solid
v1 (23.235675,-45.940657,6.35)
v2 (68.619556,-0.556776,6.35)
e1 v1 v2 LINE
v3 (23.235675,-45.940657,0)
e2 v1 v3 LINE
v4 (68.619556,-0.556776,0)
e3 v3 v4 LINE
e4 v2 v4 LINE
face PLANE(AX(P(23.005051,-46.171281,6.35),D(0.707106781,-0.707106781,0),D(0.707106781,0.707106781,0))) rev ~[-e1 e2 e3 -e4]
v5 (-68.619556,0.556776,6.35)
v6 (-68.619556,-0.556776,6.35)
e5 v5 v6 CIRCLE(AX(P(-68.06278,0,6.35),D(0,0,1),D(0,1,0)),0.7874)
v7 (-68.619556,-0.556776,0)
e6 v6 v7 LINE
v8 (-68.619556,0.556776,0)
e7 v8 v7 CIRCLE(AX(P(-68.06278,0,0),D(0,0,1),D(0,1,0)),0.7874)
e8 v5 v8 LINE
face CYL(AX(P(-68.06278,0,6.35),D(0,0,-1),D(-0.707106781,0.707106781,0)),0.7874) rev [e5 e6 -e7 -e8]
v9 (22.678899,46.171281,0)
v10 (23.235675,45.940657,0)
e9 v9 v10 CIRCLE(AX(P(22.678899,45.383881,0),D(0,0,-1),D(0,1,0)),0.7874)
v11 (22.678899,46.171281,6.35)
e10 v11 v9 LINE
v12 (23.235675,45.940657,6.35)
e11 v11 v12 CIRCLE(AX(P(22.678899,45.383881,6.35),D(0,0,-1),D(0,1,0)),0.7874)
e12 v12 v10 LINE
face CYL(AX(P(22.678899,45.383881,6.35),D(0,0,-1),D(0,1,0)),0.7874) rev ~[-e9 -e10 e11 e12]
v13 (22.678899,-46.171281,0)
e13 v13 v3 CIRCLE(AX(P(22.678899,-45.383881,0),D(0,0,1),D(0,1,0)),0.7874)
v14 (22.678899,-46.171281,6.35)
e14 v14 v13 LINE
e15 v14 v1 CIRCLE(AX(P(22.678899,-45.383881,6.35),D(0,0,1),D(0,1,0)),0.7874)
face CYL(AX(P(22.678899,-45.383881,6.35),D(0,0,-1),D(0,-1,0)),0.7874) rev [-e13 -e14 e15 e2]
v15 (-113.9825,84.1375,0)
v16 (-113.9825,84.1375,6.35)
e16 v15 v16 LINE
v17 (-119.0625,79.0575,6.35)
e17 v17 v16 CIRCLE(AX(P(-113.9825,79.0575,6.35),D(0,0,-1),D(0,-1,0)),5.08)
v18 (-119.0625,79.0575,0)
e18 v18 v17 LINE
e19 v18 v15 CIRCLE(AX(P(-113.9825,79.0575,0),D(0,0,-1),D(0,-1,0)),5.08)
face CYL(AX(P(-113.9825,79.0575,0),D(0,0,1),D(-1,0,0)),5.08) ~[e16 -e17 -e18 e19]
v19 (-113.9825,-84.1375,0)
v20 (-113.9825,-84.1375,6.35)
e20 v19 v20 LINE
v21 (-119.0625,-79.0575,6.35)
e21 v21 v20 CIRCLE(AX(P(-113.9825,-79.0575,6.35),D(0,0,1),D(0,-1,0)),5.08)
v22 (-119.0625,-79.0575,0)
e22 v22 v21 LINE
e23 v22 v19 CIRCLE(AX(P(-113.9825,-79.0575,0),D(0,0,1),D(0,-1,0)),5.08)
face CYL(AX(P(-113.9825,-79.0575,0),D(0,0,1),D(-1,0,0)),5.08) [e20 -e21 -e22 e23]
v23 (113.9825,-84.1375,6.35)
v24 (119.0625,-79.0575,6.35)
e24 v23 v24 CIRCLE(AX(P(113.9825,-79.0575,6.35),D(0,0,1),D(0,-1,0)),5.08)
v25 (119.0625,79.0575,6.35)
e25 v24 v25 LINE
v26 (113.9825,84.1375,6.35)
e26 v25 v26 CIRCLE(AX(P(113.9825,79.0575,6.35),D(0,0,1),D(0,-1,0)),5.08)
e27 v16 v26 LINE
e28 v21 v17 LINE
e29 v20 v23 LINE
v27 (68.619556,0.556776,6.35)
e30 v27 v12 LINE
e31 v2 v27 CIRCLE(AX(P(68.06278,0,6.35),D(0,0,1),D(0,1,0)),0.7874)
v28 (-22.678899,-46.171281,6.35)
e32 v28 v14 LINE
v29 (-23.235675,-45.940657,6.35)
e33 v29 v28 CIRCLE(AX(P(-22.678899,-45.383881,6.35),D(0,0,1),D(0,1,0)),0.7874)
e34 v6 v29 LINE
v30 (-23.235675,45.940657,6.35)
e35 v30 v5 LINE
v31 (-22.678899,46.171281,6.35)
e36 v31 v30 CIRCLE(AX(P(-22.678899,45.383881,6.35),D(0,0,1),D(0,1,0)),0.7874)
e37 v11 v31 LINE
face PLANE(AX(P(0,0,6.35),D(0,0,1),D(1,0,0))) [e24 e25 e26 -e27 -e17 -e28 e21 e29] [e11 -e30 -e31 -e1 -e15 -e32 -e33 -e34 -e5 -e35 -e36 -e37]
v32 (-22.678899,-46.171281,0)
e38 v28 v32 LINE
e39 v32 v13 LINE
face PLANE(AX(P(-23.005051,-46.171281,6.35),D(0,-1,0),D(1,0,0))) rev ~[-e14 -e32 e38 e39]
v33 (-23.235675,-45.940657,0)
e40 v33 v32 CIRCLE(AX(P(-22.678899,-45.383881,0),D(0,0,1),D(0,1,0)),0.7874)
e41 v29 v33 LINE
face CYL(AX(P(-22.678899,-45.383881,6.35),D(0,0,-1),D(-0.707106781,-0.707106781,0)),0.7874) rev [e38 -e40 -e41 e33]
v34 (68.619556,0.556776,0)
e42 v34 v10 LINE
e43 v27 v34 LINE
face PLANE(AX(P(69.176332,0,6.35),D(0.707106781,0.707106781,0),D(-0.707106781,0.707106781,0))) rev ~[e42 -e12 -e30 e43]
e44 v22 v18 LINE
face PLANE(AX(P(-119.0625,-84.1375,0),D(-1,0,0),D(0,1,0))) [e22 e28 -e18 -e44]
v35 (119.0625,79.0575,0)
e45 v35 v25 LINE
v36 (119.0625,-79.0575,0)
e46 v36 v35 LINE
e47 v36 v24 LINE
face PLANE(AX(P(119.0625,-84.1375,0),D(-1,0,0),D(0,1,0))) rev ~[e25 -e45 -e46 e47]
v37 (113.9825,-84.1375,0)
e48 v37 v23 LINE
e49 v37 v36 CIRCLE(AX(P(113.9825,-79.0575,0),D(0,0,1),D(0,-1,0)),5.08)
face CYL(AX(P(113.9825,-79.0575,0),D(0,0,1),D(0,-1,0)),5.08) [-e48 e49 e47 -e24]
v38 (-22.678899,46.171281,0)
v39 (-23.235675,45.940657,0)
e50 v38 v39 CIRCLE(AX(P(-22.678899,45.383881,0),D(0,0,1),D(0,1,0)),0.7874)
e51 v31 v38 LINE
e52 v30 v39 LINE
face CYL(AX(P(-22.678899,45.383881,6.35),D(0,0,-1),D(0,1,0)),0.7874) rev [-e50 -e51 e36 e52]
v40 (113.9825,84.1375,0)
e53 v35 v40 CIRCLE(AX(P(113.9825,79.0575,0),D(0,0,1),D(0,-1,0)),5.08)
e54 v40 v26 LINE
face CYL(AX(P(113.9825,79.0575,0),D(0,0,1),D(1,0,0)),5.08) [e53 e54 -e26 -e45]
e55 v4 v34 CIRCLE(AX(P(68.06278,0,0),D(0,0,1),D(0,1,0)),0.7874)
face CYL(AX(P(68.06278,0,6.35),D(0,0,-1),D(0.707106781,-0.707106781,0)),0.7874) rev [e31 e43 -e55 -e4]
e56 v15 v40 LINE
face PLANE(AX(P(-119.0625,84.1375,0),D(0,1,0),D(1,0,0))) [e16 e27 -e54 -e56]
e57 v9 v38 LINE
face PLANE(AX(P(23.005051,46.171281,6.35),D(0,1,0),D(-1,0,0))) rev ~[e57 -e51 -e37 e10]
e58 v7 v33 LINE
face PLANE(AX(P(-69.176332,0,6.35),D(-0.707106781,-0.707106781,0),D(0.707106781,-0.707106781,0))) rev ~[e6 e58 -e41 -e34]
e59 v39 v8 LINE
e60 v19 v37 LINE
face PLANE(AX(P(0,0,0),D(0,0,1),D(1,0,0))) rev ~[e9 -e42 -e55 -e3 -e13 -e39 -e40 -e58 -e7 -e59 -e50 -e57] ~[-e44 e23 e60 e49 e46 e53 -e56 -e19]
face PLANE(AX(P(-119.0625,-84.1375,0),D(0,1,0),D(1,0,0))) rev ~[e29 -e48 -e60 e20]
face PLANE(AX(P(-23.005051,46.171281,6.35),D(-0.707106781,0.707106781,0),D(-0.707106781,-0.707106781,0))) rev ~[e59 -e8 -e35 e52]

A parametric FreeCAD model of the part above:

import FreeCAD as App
import Part
import Sketcher

V = App.Vector
Q = App.Units.Quantity


def edges_at(feature, points):
    """Names of the edges that pass closest to the given points."""
    edges = feature.Shape.Edges
    near = lambda p: min(range(len(edges)), key=lambda i: edges[i].distToShape(Part.Vertex(*p))[0])
    return sorted({f"Edge{near(p) + 1}" for p in points})


def add_polygon(sketch, points):
    """Adds a closed chain of lines whose ends are joined by coincident constraints."""
    first, n = sketch.GeometryCount, len(points)
    for a, b in zip(points, points[1:] + points[:1]):
        sketch.addGeometry(Part.LineSegment(App.Vector(*a, 0), App.Vector(*b, 0)), False)
    for i in range(n):
        sketch.addConstraint(Sketcher.Constraint("Coincident", first + i, 2, first + (i + 1) % n, 1))

doc = App.newDocument("Part")
body = doc.addObject("PartDesign::Body", "Body")

sketch1 = doc.addObject("Sketcher::SketchObject", "Sketch")
body.addObject(sketch1)
sketch1.AttachmentSupport = (doc.XY_Plane, [""])
sketch1.MapMode = "FlatFace"
add_polygon(sketch1, [(-119.0625, 84.1375), (-119.0625, -84.1375), (119.0625, -84.1375), (119.0625, 84.1375)])
sketch1.addConstraint([
    Sketcher.Constraint("Vertical", 0),
    Sketcher.Constraint("Horizontal", 1),
    Sketcher.Constraint("Vertical", 2),
    Sketcher.Constraint("Horizontal", 3),
    Sketcher.Constraint("Symmetric", 0, 2, 2, 2, -1, 1),
    Sketcher.Constraint("DistanceX", 1, 1, 1, 2, Q("9.375 in")),
    Sketcher.Constraint("DistanceY", 0, 2, 0, 1, Q("6.625 in")),
])
pad1 = doc.addObject("PartDesign::Pad", "Pad")
body.addObject(pad1)
pad1.Profile = sketch1
pad1.Length = Q("0.25 in")
doc.recompute()

fillet = doc.addObject("PartDesign::Fillet", "Fillet")
body.addObject(fillet)
fillet.Base = (pad1, edges_at(pad1, [
    (119.062, 84.138, 3.175),
    (119.062, -84.138, 3.175),
    (-119.062, -84.138, 3.175),
    (-119.062, 84.138, 3.175),
]))
fillet.Radius = Q("0.2 in")

sketch2 = doc.addObject("Sketcher::SketchObject", "Sketch001")
body.addObject(sketch2)
sketch2.AttachmentSupport = (doc.XY_Plane, [""])
sketch2.MapMode = "FlatFace"
sketch2.AttachmentOffset = App.Placement(V(0, 0, 0.25 * 25.4), App.Rotation())
add_polygon(sketch2, [(22.479, 44.901281), (-22.479, 44.901281), (-67.380281, 0), (-22.479, -44.901281), (22.479, -44.901281), (67.380281, 0)])
sketch2.addConstraint([
    Sketcher.Constraint("Horizontal", 0),
    Sketcher.Constraint("Horizontal", 3),
    Sketcher.Constraint("Symmetric", 0, 2, 3, 2, -1, 1),
    Sketcher.Constraint("Symmetric", 1, 2, 4, 2, -1, 1),
    Sketcher.Constraint("PointOnObject", 1, 2, -1),
    Sketcher.Constraint("Perpendicular", 1, 2),
    Sketcher.Constraint("Perpendicular", 4, 5),
    Sketcher.Constraint("Vertical", 0, 2, 2, 2),
    Sketcher.Constraint("Distance", 1, Q("2.5 in")),
    Sketcher.Constraint("DistanceX", 0, 2, 0, 1, Q("1.77 in")),
])
pocket1 = doc.addObject("PartDesign::Pocket", "Pocket")
body.addObject(pocket1)
pocket1.Profile = sketch2
pocket1.Length = Q("1 in")

sketch3 = doc.addObject("Sketcher::SketchObject", "Sketch002")
body.addObject(sketch3)
sketch3.AttachmentSupport = (doc.XY_Plane, [""])
sketch3.MapMode = "FlatFace"
sketch3.AttachmentOffset = App.Placement(V(0, 0, 0.25 * 25.4), App.Rotation())
add_polygon(sketch3, [(23.005051, 46.171281), (-23.005051, 46.171281), (-69.176332, 0), (-23.005051, -46.171281), (23.005051, -46.171281), (69.176332, 0)])
sketch3.addConstraint([
    Sketcher.Constraint("Horizontal", 0),
    Sketcher.Constraint("Horizontal", 3),
    Sketcher.Constraint("Symmetric", 0, 2, 3, 2, -1, 1),
    Sketcher.Constraint("Symmetric", 1, 2, 4, 2, -1, 1),
    Sketcher.Constraint("PointOnObject", 1, 2, -1),
    Sketcher.Constraint("Perpendicular", 1, 2),
    Sketcher.Constraint("Perpendicular", 4, 5),
    Sketcher.Constraint("Vertical", 0, 2, 2, 2),
    Sketcher.Constraint("Distance", 1, 65.296052),
    Sketcher.Constraint("DistanceX", 0, 2, 0, 1, 46.010102),
])
pocket2 = doc.addObject("PartDesign::Pocket", "Pocket001")
body.addObject(pocket2)
pocket2.Profile = sketch3
pocket2.Length = Q("1 in")
doc.recompute()

fillet2 = doc.addObject("PartDesign::Fillet", "Fillet001")
body.addObject(fillet2)
fillet2.Base = (pocket2, edges_at(pocket2, [
    (-23.005, 46.171, 3.175),
    (23.005, 46.171, 3.175),
    (-69.176, 0, 3.175),
    (-23.005, -46.171, 3.175),
    (23.005, -46.171, 3.175),
    (69.176, 0, 3.175),
]))
fillet2.Radius = Q("0.031 in")

doc.recompute()
